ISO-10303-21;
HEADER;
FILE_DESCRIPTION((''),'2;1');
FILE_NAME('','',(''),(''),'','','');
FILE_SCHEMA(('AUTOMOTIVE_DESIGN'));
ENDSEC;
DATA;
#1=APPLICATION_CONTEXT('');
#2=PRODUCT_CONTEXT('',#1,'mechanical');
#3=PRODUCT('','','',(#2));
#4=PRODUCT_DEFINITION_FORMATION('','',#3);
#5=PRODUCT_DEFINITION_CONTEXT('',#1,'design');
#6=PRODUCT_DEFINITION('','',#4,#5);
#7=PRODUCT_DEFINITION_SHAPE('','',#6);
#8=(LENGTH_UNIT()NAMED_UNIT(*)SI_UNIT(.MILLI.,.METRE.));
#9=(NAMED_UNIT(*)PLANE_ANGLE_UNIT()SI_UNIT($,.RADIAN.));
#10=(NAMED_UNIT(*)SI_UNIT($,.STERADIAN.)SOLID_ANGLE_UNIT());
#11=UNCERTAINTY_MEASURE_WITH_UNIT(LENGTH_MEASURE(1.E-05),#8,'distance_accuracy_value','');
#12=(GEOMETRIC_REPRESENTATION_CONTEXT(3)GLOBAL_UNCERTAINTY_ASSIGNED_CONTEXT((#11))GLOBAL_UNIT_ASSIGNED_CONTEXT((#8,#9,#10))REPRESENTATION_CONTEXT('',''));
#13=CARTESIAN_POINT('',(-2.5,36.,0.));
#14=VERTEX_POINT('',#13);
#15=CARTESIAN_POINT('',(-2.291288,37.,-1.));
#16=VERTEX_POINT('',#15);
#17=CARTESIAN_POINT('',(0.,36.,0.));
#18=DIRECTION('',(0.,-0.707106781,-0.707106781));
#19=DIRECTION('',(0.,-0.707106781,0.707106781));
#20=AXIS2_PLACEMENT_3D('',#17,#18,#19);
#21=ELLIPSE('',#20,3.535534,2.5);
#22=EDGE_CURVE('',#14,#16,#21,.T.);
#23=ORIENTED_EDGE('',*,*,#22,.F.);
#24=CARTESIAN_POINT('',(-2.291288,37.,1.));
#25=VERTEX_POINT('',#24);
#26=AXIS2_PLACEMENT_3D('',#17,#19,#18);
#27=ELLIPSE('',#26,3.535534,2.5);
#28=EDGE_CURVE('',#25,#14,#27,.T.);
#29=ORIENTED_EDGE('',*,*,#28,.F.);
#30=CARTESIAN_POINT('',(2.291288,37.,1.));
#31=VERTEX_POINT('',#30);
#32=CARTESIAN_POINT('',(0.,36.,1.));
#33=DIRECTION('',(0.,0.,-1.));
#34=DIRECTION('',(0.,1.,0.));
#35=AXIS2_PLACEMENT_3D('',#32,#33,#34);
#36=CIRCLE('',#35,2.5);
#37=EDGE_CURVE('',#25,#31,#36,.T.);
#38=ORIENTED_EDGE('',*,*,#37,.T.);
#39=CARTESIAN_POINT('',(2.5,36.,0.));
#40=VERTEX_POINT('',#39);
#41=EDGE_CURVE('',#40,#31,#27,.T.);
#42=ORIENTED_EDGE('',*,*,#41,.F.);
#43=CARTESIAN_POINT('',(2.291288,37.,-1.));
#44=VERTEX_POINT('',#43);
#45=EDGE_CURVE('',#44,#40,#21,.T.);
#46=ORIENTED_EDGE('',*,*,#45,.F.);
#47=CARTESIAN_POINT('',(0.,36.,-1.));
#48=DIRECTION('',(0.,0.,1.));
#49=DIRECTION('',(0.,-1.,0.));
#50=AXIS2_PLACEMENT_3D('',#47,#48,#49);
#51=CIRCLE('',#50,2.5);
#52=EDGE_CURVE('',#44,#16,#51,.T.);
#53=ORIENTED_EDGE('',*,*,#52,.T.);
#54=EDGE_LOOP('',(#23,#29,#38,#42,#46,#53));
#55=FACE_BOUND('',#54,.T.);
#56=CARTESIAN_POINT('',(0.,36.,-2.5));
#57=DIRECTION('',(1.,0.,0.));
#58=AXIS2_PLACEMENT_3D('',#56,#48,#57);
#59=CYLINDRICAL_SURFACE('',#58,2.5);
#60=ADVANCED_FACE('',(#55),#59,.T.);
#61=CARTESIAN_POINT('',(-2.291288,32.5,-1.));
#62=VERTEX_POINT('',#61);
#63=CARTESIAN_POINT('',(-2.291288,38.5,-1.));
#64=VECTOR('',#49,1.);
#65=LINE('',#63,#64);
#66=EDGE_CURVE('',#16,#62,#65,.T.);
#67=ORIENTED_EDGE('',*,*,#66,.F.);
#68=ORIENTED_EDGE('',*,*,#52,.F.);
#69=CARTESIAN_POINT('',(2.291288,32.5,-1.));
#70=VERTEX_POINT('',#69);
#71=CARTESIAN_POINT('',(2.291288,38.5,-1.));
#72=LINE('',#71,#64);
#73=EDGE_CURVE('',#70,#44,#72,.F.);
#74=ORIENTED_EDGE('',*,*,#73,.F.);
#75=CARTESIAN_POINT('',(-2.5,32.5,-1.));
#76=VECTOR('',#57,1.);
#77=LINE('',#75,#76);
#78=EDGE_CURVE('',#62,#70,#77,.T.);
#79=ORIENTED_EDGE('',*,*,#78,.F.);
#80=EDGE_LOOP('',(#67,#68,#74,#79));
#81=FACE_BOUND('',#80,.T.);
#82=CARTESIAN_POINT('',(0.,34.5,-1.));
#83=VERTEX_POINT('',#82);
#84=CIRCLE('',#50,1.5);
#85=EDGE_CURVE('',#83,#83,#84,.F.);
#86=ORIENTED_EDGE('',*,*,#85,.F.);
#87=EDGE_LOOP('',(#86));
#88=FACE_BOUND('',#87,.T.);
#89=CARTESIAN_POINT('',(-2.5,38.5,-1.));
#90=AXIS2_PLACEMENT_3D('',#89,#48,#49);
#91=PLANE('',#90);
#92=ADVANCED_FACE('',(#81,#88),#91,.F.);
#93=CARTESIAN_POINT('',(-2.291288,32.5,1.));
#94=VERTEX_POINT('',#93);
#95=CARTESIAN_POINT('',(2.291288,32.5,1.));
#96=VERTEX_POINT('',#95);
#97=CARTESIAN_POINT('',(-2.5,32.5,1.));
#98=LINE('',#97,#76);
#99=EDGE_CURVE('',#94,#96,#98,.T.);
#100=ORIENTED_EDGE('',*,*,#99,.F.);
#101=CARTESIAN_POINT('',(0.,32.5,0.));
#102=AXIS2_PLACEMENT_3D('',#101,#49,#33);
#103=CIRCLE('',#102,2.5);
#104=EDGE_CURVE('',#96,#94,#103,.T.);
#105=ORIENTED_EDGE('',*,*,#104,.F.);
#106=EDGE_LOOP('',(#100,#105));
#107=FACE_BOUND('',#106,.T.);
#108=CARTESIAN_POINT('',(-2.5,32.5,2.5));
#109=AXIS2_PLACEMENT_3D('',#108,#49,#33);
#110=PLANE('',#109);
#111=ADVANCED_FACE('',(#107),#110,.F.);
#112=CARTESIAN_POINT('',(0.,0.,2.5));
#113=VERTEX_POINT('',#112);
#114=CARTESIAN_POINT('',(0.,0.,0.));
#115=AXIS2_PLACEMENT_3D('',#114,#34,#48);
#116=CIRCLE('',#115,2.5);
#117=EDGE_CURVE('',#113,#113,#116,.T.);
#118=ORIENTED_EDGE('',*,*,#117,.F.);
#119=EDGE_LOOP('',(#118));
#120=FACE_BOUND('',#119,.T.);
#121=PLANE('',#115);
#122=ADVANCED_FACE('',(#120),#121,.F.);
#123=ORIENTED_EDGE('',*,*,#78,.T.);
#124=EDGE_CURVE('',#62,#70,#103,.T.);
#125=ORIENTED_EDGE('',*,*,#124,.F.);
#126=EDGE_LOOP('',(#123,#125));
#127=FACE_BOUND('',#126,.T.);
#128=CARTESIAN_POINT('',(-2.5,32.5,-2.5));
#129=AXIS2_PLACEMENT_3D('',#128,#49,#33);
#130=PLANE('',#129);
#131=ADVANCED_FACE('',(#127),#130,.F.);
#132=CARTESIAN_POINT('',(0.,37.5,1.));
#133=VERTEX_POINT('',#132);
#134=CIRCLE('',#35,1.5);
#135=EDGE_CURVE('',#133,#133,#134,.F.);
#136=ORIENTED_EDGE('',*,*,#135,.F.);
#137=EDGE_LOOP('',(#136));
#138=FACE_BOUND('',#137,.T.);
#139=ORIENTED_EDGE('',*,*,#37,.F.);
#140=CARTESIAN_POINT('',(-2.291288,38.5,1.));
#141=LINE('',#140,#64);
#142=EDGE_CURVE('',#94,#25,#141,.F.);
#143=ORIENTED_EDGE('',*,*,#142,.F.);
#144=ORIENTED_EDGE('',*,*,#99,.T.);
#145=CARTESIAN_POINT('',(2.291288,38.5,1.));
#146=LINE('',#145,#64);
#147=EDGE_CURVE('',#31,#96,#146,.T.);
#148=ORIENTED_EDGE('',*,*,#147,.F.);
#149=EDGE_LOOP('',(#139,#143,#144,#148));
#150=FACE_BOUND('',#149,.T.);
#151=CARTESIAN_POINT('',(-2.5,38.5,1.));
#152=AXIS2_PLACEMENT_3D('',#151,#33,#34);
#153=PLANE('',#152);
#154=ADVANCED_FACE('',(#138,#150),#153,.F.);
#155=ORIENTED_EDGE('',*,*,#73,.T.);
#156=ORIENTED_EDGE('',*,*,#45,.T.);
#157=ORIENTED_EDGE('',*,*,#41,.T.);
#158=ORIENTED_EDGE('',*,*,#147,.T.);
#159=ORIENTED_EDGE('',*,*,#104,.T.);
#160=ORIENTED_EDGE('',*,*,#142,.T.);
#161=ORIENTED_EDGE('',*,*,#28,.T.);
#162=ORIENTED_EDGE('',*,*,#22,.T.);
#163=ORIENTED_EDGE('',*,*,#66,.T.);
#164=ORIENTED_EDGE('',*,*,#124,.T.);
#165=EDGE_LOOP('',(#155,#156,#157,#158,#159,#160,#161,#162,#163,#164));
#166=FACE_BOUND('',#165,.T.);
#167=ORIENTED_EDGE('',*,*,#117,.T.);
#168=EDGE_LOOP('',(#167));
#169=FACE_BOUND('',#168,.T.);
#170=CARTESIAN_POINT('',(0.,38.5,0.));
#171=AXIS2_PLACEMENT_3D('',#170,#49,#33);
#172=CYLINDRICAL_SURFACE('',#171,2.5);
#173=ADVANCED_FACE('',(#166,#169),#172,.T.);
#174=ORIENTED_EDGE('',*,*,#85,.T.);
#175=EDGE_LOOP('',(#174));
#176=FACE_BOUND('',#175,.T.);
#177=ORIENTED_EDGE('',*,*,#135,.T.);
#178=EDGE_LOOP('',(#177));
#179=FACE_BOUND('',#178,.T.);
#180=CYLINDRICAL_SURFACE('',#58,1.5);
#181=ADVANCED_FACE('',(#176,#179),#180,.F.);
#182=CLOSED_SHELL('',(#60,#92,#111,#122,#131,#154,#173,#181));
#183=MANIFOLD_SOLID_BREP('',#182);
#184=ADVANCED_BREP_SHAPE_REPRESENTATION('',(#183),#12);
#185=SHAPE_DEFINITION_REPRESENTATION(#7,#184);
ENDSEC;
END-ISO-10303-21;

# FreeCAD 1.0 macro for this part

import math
import FreeCAD as App
import Part
import Sketcher
Q = App.Units.Quantity


def add_polygon(sketch, points):
    """Adds a closed chain of lines whose ends are joined by coincident constraints."""
    first, n = sketch.GeometryCount, len(points)
    for a, b in zip(points, points[1:] + points[:1]):
        sketch.addGeometry(Part.LineSegment(App.Vector(*a, 0), App.Vector(*b, 0)), False)
    for i in range(n):
        sketch.addConstraint(Sketcher.Constraint("Coincident", first + i, 2, first + (i + 1) % n, 1))

doc = App.newDocument("Part")
body = doc.addObject("PartDesign::Body", "Body")

sketch1 = body.newObject("Sketcher::SketchObject", "Sketch")
sketch1.AttachmentSupport = (doc.getObject("XZ_Plane"), [""])
sketch1.MapMode = "FlatFace"
sketch1.addGeometry(Part.Circle(App.Vector(0, 0, 0), App.Vector(0, 0, 1), 2.5), False)
sketch1.addConstraint([
    Sketcher.Constraint("Coincident", 0, 3, -1, 1),
    Sketcher.Constraint("Diameter", 0, Q("5 mm")),
])
pad1 = body.newObject("PartDesign::Pad", "Pad")
pad1.Profile = sketch1
pad1.Length = 38.5
pad1.Reversed = True

sketch2 = body.newObject("Sketcher::SketchObject", "Sketch001")
sketch2.AttachmentSupport = (doc.getObject("XY_Plane"), [""])
sketch2.MapMode = "FlatFace"
sketch2.addGeometry([
    Part.ArcOfCircle(Part.Circle(App.Vector(0, 36, 0), App.Vector(0, 0, 1), 2.5), math.radians(90), math.radians(180)),
    Part.LineSegment(App.Vector(0, 38.5, 0), App.Vector(-2.5, 38.5, 0)),
    Part.LineSegment(App.Vector(-2.5, 38.5, 0), App.Vector(-2.5, 36, 0)),
    Part.LineSegment(App.Vector(2.5, 38.5, 0), App.Vector(0, 38.5, 0)),
    Part.ArcOfCircle(Part.Circle(App.Vector(0, 36, 0), App.Vector(0, 0, 1), 2.5), math.radians(0), math.radians(90)),
    Part.LineSegment(App.Vector(2.5, 36, 0), App.Vector(2.5, 38.5, 0)),
    Part.ArcOfCircle(Part.Circle(App.Vector(0, 36, 0), App.Vector(0, 0, 1), 1.5), math.radians(0), math.radians(90)),
    Part.ArcOfCircle(Part.Circle(App.Vector(0, 36, 0), App.Vector(0, 0, 1), 1.5), math.radians(90), math.radians(270)),
    Part.ArcOfCircle(Part.Circle(App.Vector(0, 36, 0), App.Vector(0, 0, 1), 1.5), math.radians(-90), math.radians(0)),
], False)
sketch2.addConstraint([
    Sketcher.Constraint("Tangent", 0, 1, 1, 1),
    Sketcher.Constraint("Coincident", 1, 2, 2, 1),
    Sketcher.Constraint("Tangent", 2, 2, 0, 2),
    Sketcher.Constraint("Tangent", 3, 2, 4, 2),
    Sketcher.Constraint("Tangent", 4, 1, 5, 1),
    Sketcher.Constraint("Coincident", 5, 2, 3, 1),
    Sketcher.Constraint("Tangent", 6, 2, 7, 1),
    Sketcher.Constraint("Tangent", 7, 2, 8, 1),
    Sketcher.Constraint("Tangent", 8, 2, 6, 1),
    Sketcher.Constraint("Horizontal", 1),
    Sketcher.Constraint("Vertical", 2),
    Sketcher.Constraint("Horizontal", 3),
    Sketcher.Constraint("Vertical", 5),
    Sketcher.Constraint("Coincident", 4, 3, 0, 3),
    Sketcher.Constraint("Coincident", 6, 3, 0, 3),
    Sketcher.Constraint("Equal", 0, 4),
    Sketcher.Constraint("PointOnObject", 0, 3, -2),
    Sketcher.Constraint("PointOnObject", 6, 2, -2),
    Sketcher.Constraint("PointOnObject", 7, 2, -2),
    Sketcher.Constraint("Horizontal", 4, 1, 8, 2),
    Sketcher.Constraint("Radius", 0, Q("2.5 mm")),
    Sketcher.Constraint("Radius", 6, Q("1.5 mm")),
    Sketcher.Constraint("DistanceY", -1, 1, 0, 3, Q("36 mm")),
])
pocket1 = body.newObject("PartDesign::Pocket", "Pocket")
pocket1.Profile = sketch2
pocket1.Type = "ThroughAll"
pocket1.Midplane = True

sketch3 = body.newObject("Sketcher::SketchObject", "Sketch002")
sketch3.AttachmentSupport = (doc.getObject("YZ_Plane"), [""])
sketch3.MapMode = "FlatFace"
add_polygon(sketch3, [(38.5, 2.5), (32.5, 2.5), (32.5, 1), (38.5, 1)])
add_polygon(sketch3, [(38.5, -1), (32.5, -1), (32.5, -2.5), (38.5, -2.5)])
sketch3.addConstraint([
    Sketcher.Constraint("Horizontal", 0),
    Sketcher.Constraint("Vertical", 1),
    Sketcher.Constraint("Horizontal", 2),
    Sketcher.Constraint("Vertical", 3),
    Sketcher.Constraint("Horizontal", 4),
    Sketcher.Constraint("Vertical", 5),
    Sketcher.Constraint("Horizontal", 6),
    Sketcher.Constraint("Vertical", 7),
    Sketcher.Constraint("Symmetric", 1, 2, 4, 2, -1),
    Sketcher.Constraint("Symmetric", 3, 2, 6, 2, -1),
    Sketcher.Constraint("DistanceX", 0, 2, 0, 1, Q("6 mm")),
    Sketcher.Constraint("DistanceY", 1, 2, 1, 1, Q("1.5 mm")),
    Sketcher.Constraint("DistanceY", -1, 1, 1, 2, Q("1 mm")),
    Sketcher.Constraint("DistanceX", -1, 1, 0, 2, Q("32.5 mm")),
])
pocket2 = body.newObject("PartDesign::Pocket", "Pocket001")
pocket2.Profile = sketch3
pocket2.Type = "ThroughAll"
pocket2.Midplane = True

doc.recompute()
